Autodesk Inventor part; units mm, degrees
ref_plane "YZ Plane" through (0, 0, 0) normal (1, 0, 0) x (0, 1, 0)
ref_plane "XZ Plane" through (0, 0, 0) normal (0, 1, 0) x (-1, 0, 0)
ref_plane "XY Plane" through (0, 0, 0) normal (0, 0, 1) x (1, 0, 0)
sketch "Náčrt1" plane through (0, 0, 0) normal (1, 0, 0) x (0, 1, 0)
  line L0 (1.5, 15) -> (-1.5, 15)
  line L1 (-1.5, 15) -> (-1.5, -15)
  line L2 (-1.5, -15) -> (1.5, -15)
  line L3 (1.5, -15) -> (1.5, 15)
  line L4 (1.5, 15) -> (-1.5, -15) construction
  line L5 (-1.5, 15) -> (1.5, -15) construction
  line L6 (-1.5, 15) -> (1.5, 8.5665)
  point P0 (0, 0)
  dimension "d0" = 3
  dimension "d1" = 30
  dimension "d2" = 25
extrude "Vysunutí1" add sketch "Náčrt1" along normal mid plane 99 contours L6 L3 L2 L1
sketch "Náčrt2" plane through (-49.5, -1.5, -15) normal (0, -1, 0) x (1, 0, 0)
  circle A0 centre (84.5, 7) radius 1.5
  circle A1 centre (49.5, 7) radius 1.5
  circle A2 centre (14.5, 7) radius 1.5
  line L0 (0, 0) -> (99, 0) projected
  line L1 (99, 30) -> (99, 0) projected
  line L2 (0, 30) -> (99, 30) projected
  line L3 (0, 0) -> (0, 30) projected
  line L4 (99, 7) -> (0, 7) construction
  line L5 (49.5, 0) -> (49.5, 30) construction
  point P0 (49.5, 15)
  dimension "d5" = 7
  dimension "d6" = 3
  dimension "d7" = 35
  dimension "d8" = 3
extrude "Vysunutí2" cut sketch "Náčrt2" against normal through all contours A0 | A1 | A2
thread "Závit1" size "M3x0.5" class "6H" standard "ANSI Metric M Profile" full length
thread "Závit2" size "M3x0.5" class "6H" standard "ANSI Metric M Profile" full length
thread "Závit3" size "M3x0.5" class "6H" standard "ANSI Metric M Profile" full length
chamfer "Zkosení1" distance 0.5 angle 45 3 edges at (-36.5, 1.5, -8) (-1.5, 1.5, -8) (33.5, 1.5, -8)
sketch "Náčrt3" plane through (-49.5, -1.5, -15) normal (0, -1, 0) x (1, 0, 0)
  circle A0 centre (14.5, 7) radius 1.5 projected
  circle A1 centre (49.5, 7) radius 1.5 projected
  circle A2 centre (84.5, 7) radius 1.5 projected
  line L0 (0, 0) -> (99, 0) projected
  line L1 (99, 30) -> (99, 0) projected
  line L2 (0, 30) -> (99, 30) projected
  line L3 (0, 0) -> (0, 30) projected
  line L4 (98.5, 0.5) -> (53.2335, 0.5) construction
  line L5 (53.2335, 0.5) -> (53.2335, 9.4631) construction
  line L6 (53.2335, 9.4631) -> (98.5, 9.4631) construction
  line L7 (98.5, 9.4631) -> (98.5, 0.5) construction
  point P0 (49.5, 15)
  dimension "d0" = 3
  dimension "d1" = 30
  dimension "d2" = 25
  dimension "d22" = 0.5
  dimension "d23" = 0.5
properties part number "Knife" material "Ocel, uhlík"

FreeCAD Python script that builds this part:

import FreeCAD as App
import Part
import Sketcher

V = App.Vector
Q = App.Units.Quantity


def edges_at(feature, points):
    """Names of the edges that pass closest to the given points."""
    edges = feature.Shape.Edges
    near = lambda p: min(range(len(edges)), key=lambda i: edges[i].distToShape(Part.Vertex(*p))[0])
    return sorted({f"Edge{near(p) + 1}" for p in points})


def add_polygon(sketch, points):
    """Adds a closed chain of lines whose ends are joined by coincident constraints."""
    first, n = sketch.GeometryCount, len(points)
    for a, b in zip(points, points[1:] + points[:1]):
        sketch.addGeometry(Part.LineSegment(App.Vector(*a, 0), App.Vector(*b, 0)), False)
    for i in range(n):
        sketch.addConstraint(Sketcher.Constraint("Coincident", first + i, 2, first + (i + 1) % n, 1))

doc = App.newDocument("Part")
params = doc.addObject("Spreadsheet::Sheet", "Params")
for row, (alias, value) in enumerate([
    ("sketch1_width", "3 mm"),
    ("sketch1_height", "30 mm"),
    ("pad1_length", "99 mm"),
    ("sketch2_diameter", "3 mm"),
    ("chamfer_size", "0.5 mm"),
], start=1):
    params.set(f"A{row}", alias)
    params.set(f"B{row}", "=" + value)
    params.setAlias(f"B{row}", alias)

body = doc.addObject("PartDesign::Body", "Body")

sketch1 = body.newObject("Sketcher::SketchObject", "Sketch")
sketch1.AttachmentSupport = (doc.getObject("YZ_Plane"), [""])
sketch1.MapMode = "FlatFace"
add_polygon(sketch1, [(1.5, 8.5665), (-1.5, 15), (-1.5, -15), (1.5, -15)])
sketch1.addConstraint([
    Sketcher.Constraint("Vertical", 1),
    Sketcher.Constraint("Horizontal", 2),
    Sketcher.Constraint("Vertical", 3),
    Sketcher.Constraint("Symmetric", 0, 2, 2, 2, -1, 1),
    Sketcher.Constraint("DistanceX", 2, 1, 2, 2, Q("3 mm")),
    Sketcher.Constraint("DistanceY", 1, 2, 1, 1, Q("30 mm")),
    Sketcher.Constraint("Angle", 0, Q("115 deg")),
])
sketch1.setExpression("Constraints[8]", "Params.sketch1_width")
sketch1.setExpression("Constraints[9]", "Params.sketch1_height")
pad1 = body.newObject("PartDesign::Pad", "Pad")
pad1.Profile = sketch1
pad1.setExpression("Length", "Params.pad1_length")
pad1.Midplane = True

sketch2 = body.newObject("Sketcher::SketchObject", "Sketch001")
sketch2.AttachmentSupport = (doc.getObject("XZ_Plane"), [""])
sketch2.MapMode = "FlatFace"
sketch2.AttachmentOffset = App.Placement(V(0, 0, 1.5), App.Rotation())
sketch2.addGeometry([
    Part.Circle(V(35, -8, 0), V(0, 0, 1), 1.5),
    Part.Circle(V(0, -8, 0), V(0, 0, 1), 1.5),
    Part.Circle(V(-35, -8, 0), V(0, 0, 1), 1.5),
], False)
sketch2.addConstraint([
    Sketcher.Constraint("Equal", 0, 1),
    Sketcher.Constraint("Equal", 1, 2),
    Sketcher.Constraint("Symmetric", 0, 3, 2, 3, -2),
    Sketcher.Constraint("PointOnObject", 1, 3, -2),
    Sketcher.Constraint("Horizontal", 0, 3, 1, 3),
    Sketcher.Constraint("Diameter", 0, Q("3 mm")),
    Sketcher.Constraint("DistanceX", -1, 1, 0, 3, Q("35 mm")),
    Sketcher.Constraint("DistanceY", 0, 3, -1, 1, Q("8 mm")),
])
sketch2.setExpression("Constraints[5]", "Params.sketch2_diameter")
pocket1 = body.newObject("PartDesign::Pocket", "Pocket")
pocket1.Profile = sketch2
pocket1.Type = "ThroughAll"
doc.recompute()

chamfer = body.newObject("PartDesign::Chamfer", "Chamfer")
chamfer.Base = (pocket1, edges_at(pocket1, [(-36.5, 1.5, -8), (-1.5, 1.5, -8), (33.5, 1.5, -8)]))
chamfer.setExpression("Size", "Params.chamfer_size")

doc.recompute()
